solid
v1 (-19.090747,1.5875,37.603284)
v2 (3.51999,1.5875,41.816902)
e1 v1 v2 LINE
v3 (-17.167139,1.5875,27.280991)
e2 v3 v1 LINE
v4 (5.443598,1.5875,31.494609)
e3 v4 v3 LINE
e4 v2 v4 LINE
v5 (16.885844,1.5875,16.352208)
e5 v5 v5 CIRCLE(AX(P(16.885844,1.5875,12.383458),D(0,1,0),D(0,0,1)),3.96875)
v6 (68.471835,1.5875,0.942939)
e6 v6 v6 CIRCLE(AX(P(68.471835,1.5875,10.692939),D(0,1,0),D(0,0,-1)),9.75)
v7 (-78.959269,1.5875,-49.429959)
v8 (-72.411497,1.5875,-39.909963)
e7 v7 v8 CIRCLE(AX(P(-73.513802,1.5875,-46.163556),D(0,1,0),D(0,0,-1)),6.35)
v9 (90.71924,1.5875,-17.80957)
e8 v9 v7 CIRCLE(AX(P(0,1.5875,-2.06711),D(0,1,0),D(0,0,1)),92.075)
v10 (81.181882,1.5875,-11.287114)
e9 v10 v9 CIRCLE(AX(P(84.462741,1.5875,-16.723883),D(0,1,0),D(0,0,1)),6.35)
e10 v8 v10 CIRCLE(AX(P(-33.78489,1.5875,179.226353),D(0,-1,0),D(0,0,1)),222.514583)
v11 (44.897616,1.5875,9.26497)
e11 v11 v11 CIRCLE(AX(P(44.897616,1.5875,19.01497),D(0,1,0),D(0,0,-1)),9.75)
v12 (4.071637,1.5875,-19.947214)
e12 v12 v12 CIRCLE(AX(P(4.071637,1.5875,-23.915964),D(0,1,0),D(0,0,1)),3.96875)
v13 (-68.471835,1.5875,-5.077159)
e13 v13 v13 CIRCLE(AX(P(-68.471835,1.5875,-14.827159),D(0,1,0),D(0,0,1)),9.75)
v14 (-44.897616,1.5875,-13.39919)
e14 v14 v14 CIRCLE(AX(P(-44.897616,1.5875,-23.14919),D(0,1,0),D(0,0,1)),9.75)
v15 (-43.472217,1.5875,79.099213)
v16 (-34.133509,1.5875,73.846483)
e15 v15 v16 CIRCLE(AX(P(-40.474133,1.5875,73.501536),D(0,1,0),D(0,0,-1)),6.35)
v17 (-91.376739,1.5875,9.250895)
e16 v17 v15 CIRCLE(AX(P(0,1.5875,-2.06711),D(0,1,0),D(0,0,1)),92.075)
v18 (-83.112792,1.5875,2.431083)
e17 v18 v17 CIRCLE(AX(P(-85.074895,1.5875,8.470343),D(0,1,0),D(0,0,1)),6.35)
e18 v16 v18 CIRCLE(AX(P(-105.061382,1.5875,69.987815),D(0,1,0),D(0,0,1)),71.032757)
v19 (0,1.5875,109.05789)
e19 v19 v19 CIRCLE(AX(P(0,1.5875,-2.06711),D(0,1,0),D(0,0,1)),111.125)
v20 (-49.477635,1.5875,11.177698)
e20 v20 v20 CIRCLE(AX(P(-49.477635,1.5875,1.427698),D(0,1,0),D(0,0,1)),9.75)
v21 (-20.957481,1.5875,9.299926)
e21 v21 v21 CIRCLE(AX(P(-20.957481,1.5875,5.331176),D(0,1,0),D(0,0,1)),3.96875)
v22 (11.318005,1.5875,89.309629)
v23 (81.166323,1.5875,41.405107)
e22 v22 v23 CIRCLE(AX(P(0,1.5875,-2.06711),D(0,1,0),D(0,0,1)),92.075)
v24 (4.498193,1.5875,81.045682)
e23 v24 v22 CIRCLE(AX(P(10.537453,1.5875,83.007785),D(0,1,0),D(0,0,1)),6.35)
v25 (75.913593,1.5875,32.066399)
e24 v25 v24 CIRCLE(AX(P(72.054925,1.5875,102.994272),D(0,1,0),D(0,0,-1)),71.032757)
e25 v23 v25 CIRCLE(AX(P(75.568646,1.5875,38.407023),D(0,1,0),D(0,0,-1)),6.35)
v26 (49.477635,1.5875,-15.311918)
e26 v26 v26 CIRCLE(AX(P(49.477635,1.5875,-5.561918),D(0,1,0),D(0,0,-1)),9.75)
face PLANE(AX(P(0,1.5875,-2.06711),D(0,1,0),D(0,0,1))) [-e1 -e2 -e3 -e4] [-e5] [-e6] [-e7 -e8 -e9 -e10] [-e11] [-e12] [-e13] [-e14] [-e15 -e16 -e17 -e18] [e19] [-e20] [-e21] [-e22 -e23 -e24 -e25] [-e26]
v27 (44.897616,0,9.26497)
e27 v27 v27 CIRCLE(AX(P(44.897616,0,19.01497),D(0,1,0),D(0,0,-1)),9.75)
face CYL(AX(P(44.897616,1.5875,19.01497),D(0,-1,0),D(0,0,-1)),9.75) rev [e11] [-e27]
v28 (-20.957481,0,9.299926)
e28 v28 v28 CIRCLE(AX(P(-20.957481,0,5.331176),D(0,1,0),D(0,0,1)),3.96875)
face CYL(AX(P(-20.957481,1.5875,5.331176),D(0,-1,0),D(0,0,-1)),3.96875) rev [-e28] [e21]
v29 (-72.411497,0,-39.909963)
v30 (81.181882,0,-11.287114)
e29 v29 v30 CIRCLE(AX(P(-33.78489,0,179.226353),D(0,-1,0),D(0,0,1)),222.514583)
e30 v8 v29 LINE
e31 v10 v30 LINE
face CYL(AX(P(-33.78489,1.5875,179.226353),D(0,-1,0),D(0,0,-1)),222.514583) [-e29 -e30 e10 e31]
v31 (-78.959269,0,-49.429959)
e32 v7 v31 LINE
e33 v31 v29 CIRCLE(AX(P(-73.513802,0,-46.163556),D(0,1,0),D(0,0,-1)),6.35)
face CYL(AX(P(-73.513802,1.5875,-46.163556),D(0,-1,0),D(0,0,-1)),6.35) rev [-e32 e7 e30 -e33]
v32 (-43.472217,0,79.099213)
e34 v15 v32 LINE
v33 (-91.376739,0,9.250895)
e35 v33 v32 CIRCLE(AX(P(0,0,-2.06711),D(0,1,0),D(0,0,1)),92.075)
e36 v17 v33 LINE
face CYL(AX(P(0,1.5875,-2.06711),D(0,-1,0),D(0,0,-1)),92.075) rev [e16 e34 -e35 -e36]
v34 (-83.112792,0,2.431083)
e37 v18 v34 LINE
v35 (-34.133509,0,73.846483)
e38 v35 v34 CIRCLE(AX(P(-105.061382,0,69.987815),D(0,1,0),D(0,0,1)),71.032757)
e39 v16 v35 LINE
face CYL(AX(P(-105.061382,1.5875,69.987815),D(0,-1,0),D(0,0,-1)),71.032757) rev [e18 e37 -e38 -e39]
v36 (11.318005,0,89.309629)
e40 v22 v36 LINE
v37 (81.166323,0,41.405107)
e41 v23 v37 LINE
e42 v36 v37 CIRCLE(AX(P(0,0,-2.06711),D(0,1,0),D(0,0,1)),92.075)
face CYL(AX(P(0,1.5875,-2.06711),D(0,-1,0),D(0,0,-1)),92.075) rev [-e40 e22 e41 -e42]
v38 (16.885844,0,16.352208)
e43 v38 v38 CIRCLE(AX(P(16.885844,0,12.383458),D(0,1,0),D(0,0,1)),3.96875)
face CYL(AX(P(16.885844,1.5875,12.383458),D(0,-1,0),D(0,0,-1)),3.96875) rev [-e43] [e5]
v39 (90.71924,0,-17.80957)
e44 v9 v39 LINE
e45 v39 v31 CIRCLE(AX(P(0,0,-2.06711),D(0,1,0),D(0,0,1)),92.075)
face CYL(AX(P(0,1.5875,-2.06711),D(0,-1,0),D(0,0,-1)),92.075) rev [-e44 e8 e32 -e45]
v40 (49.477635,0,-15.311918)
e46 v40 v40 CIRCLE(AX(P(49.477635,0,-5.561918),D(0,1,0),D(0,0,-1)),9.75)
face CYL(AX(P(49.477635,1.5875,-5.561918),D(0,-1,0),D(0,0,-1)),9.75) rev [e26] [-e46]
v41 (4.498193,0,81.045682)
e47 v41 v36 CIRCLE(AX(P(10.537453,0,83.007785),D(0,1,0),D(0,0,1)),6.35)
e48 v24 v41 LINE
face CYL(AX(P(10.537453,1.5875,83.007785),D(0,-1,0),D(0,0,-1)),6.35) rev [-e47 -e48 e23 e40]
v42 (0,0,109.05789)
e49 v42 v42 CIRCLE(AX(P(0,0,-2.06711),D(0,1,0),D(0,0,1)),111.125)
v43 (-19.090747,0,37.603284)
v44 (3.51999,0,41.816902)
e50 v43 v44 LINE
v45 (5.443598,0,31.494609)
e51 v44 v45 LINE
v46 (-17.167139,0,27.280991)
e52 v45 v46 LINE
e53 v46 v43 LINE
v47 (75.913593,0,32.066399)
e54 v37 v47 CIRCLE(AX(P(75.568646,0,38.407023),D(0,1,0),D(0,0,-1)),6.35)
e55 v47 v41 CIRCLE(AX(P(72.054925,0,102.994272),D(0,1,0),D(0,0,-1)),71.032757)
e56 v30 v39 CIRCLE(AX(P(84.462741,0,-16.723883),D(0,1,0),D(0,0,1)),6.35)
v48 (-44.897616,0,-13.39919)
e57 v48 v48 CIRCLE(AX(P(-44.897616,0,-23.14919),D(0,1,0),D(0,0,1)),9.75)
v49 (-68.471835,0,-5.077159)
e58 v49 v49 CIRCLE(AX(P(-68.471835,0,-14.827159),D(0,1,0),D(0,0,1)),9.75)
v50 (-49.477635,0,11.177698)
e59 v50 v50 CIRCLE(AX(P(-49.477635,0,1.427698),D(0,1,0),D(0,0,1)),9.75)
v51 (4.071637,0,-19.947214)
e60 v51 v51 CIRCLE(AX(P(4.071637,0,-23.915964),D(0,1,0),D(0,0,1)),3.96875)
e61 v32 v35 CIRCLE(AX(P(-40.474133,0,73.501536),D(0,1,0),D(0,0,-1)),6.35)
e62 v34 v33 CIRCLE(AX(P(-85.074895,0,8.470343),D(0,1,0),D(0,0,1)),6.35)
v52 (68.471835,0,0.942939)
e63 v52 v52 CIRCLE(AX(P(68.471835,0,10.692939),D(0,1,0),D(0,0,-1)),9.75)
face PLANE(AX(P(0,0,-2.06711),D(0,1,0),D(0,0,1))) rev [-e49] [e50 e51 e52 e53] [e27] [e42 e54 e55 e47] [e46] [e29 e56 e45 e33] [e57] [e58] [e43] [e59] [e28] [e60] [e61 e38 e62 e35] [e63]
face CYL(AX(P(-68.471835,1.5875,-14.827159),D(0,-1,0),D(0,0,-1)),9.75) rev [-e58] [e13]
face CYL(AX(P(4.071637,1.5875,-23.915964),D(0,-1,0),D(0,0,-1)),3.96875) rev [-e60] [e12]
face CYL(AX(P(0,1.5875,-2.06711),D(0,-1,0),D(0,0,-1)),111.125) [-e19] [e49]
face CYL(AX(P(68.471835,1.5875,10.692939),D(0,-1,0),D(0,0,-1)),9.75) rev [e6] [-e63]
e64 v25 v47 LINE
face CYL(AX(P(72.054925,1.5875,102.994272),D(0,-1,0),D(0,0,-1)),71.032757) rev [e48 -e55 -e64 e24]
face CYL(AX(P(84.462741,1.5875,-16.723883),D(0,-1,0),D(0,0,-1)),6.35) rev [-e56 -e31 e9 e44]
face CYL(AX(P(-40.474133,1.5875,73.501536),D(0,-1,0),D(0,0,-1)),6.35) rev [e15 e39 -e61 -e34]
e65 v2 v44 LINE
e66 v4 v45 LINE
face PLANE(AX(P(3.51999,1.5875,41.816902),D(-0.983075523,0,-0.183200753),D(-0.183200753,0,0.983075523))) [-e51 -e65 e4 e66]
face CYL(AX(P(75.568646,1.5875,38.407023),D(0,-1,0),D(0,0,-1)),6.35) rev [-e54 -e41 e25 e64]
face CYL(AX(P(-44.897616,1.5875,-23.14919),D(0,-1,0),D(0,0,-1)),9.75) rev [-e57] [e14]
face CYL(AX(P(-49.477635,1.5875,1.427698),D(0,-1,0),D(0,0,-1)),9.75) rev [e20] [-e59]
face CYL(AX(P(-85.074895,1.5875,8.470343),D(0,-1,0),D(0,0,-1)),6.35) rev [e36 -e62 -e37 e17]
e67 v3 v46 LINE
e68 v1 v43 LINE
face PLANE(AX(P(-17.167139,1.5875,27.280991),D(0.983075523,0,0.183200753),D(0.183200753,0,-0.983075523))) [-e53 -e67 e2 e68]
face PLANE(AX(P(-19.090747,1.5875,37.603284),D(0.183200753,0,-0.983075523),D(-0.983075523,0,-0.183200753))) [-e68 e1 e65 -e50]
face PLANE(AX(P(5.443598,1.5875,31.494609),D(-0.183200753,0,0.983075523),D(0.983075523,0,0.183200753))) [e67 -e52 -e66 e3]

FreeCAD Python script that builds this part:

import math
import FreeCAD as App
import Part
import Sketcher

V = App.Vector
Q = App.Units.Quantity


def add_polygon(sketch, points):
    """Adds a closed chain of lines whose ends are joined by coincident constraints."""
    first, n = sketch.GeometryCount, len(points)
    for a, b in zip(points, points[1:] + points[:1]):
        sketch.addGeometry(Part.LineSegment(App.Vector(*a, 0), App.Vector(*b, 0)), False)
    for i in range(n):
        sketch.addConstraint(Sketcher.Constraint("Coincident", first + i, 2, first + (i + 1) % n, 1))

doc = App.newDocument("Part")
params = doc.addObject("Spreadsheet::Sheet", "Params")
for row, (alias, value) in enumerate([
    ("sketch1_diameter", "8.75 in"),
    ("sketch1_radius", "0.25 in"),
    ("sketch1_diameter2", "0.3125 in"),
    ("sketch1_radius2", "3.625 in"),
    ("pad1_length", "0.0625 in"),
], start=1):
    params.set(f"A{row}", alias)
    params.set(f"B{row}", "=" + value)
    params.setAlias(f"B{row}", alias)

body = doc.addObject("PartDesign::Body", "Body")

# Sketch on XZ plane
sketch1 = body.newObject("Sketcher::SketchObject", "Sketch")
sketch1.AttachmentSupport = (doc.getObject("XZ_Plane"), [""])
sketch1.MapMode = "FlatFace"
sketch1.addGeometry(Part.Circle(V(0, -2.06711, 0), V(0, 0, 1), 111.125), False)  # 0
sketch1.addGeometry(Part.ArcOfCircle(Part.Circle(V(-105.061382, 69.987815, 0), V(0, 0, 1), 71.032757), math.radians(-72.001475), math.radians(3.113976)), False)  # 1
sketch1.addGeometry(Part.ArcOfCircle(Part.Circle(V(-40.474133, 73.501536, 0), V(0, 0, 1), 6.35), math.radians(3.113976), math.radians(118.173246)), False)  # 2
sketch1.addGeometry(Part.ArcOfCircle(Part.Circle(V(0, -2.06711, 0), V(0, 0, 1), 92.075), math.radians(118.173246), math.radians(172.939254)), False)  # 3
sketch1.addGeometry(Part.ArcOfCircle(Part.Circle(V(-85.074895, 8.470343, 0), V(0, 0, 1), 6.35), math.radians(172.939254), math.radians(287.998525)), False)  # 4
sketch1.addGeometry(Part.Circle(V(-49.477635, 1.427698, 0), V(0, 0, 1), 9.75), False)  # 5
add_polygon(sketch1, [(5.443598, 31.494609), (3.51999, 41.816902), (-19.090747, 37.603284), (-17.167139, 27.280991)])  # lines 6-9
sketch1.addGeometry(Part.Circle(V(-20.957481, 5.331176, 0), V(0, 0, 1), 3.96875), False)  # 10
sketch1.addGeometry(Part.ArcOfCircle(Part.Circle(V(10.537453, 83.007785, 0), V(0, 0, 1), 6.35), math.radians(82.939254), math.radians(197.998525)), False)  # 11
sketch1.addGeometry(Part.ArcOfCircle(Part.Circle(V(72.054925, 102.994272, 0), V(0, 0, 1), 71.032757), math.radians(-162.001475), math.radians(-86.886024)), False)  # 12
sketch1.addGeometry(Part.ArcOfCircle(Part.Circle(V(75.568646, 38.407023, 0), V(0, 0, 1), 6.35), math.radians(-86.886024), math.radians(28.173246)), False)  # 13
sketch1.addGeometry(Part.ArcOfCircle(Part.Circle(V(0, -2.06711, 0), V(0, 0, 1), 92.075), math.radians(28.173246), math.radians(82.939254)), False)  # 14
sketch1.addGeometry(Part.Circle(V(16.885844, 12.383458, 0), V(0, 0, 1), 3.96875), False)  # 15
sketch1.addGeometry(Part.Circle(V(44.897616, 19.01497, 0), V(0, 0, 1), 9.75), False)  # 16
sketch1.addGeometry(Part.Circle(V(68.471835, 10.692939, 0), V(0, 0, 1), 9.75), False)  # 17
sketch1.addGeometry(Part.Circle(V(-68.471835, -14.827159, 0), V(0, 0, 1), 9.75), False)  # 18
sketch1.addGeometry(Part.Circle(V(-44.897616, -23.14919, 0), V(0, 0, 1), 9.75), False)  # 19
sketch1.addGeometry(Part.Circle(V(4.071637, -23.915964, 0), V(0, 0, 1), 3.96875), False)  # 20
sketch1.addGeometry(Part.Circle(V(49.477635, -5.561918, 0), V(0, 0, 1), 9.75), False)  # 21
sketch1.addGeometry(Part.ArcOfCircle(Part.Circle(V(0, -2.06711, 0), V(0, 0, 1), 92.075), math.radians(-149.043026), math.radians(-9.844473)), False)  # 22
sketch1.addGeometry(Part.ArcOfCircle(Part.Circle(V(84.462741, -16.723883, 0), V(0, 0, 1), 6.35), math.radians(-9.844473), math.radians(121.109194)), False)  # 23
sketch1.addGeometry(Part.ArcOfCircle(Part.Circle(V(-33.78489, 179.226353, 0), V(0, 0, 1), 222.514583), math.radians(-99.996694), math.radians(-58.890806)), False)  # 24
sketch1.addGeometry(Part.ArcOfCircle(Part.Circle(V(-73.513802, -46.163556, 0), V(0, 0, 1), 6.35), math.radians(80.003306), math.radians(210.956974)), False)  # 25
sketch1.addConstraint([
    Sketcher.Constraint("Tangent", 1, 2, 2, 1),
    Sketcher.Constraint("Tangent", 2, 2, 3, 1),
    Sketcher.Constraint("Tangent", 3, 2, 4, 1),
    Sketcher.Constraint("Tangent", 4, 2, 1, 1),
    Sketcher.Constraint("Tangent", 11, 2, 12, 1),
    Sketcher.Constraint("Tangent", 12, 2, 13, 1),
    Sketcher.Constraint("Tangent", 13, 2, 14, 1),
    Sketcher.Constraint("Tangent", 14, 2, 11, 1),
    Sketcher.Constraint("Tangent", 22, 2, 23, 1),
    Sketcher.Constraint("Tangent", 23, 2, 24, 2),
    Sketcher.Constraint("Tangent", 24, 1, 25, 1),
    Sketcher.Constraint("Tangent", 25, 2, 22, 1),
    Sketcher.Constraint("Coincident", 3, 3, 0, 3),
    Sketcher.Constraint("Coincident", 14, 3, 0, 3),
    Sketcher.Constraint("Coincident", 22, 3, 0, 3),
    Sketcher.Constraint("Equal", 2, 4),
    Sketcher.Constraint("Equal", 4, 11),
    Sketcher.Constraint("Equal", 1, 12),
    Sketcher.Constraint("Equal", 11, 13),
    Sketcher.Constraint("Equal", 3, 14),
    Sketcher.Constraint("Equal", 10, 15),
    Sketcher.Constraint("Equal", 5, 16),
    Sketcher.Constraint("Equal", 16, 17),
    Sketcher.Constraint("Equal", 17, 18),
    Sketcher.Constraint("Equal", 18, 19),
    Sketcher.Constraint("Equal", 15, 20),
    Sketcher.Constraint("Equal", 19, 21),
    Sketcher.Constraint("Equal", 14, 22),
    Sketcher.Constraint("Equal", 13, 23),
    Sketcher.Constraint("Equal", 23, 25),
    Sketcher.Constraint("PointOnObject", 0, 3, -2),
    Sketcher.Constraint("Perpendicular", 6, 7),
    Sketcher.Constraint("Perpendicular", 7, 8),
    Sketcher.Constraint("Perpendicular", 8, 9),
    Sketcher.Constraint("Diameter", 0, Q("8.75 in")),
    Sketcher.Constraint("Radius", 2, Q("0.25 in")),
    Sketcher.Constraint("Diameter", 10, Q("0.3125 in")),
    Sketcher.Constraint("Radius", 3, Q("3.625 in")),
    Sketcher.Constraint("Diameter", 5, 19.5),
    Sketcher.Constraint("DistanceY", 5, 3, 3, 2, Q("0.3079999 in")),
    Sketcher.Constraint("Radius", 1, 71.032757),
    Sketcher.Constraint("Radius", 24, 222.514583),
    Sketcher.Constraint("Distance", 6, 10.5),
    Sketcher.Constraint("Distance", 7, 23.0),
    Sketcher.Constraint("DistanceX", 25, 3, -1, 1, 73.513802),
    Sketcher.Constraint("DistanceY", -1, 1, 6, 2, 41.816902),
    Sketcher.Constraint("DistanceY", -1, 1, 12, 2, 32.066399),
    Sketcher.Constraint("DistanceX", 5, 3, 2, 3, 9.003502),
    Sketcher.Constraint("DistanceX", 15, 3, 13, 3, 58.682802),
    Sketcher.Constraint("DistanceX", 18, 3, 5, 3, 18.9942),
    Sketcher.Constraint("DistanceY", 18, 3, 4, 3, 23.297501),
    Sketcher.Constraint("DistanceX", 21, 3, 17, 3, 18.9942),
    Sketcher.Constraint("DistanceY", 25, 3, 4, 3, 54.633899),
    Sketcher.Constraint("DistanceY", 1, 3, 2, 2, 9.111398),
    Sketcher.Constraint("DistanceY", 7, 2, 1, 2, 36.243198),
    Sketcher.Constraint("DistanceY", 3, 3, 8, 2, 29.348101),
    Sketcher.Constraint("DistanceX", 1, 2, 11, 2, 38.631702),
    Sketcher.Constraint("DistanceX", 10, 3, -1, 1, 20.957481),
    Sketcher.Constraint("DistanceY", -1, 1, 16, 3, 19.01497),
    Sketcher.Constraint("DistanceY", -1, 1, 17, 3, 10.692939),
    Sketcher.Constraint("DistanceY", 19, 3, -1, 1, 23.14919),
    Sketcher.Constraint("DistanceX", -1, 1, 23, 3, 84.462741),
    Sketcher.Constraint("DistanceX", -1, 1, 6, 2, 3.51999),
    Sketcher.Constraint("DistanceY", 10, 3, 2, 3, 68.17036),
    Sketcher.Constraint("DistanceY", 10, 3, 15, 3, 7.052282),
    Sketcher.Constraint("DistanceX", 15, 3, 16, 3, 28.011772),
    Sketcher.Constraint("DistanceX", 16, 3, 17, 3, 23.574219),
    Sketcher.Constraint("DistanceX", 5, 3, 19, 3, 4.580019),
    Sketcher.Constraint("DistanceY", 20, 3, 15, 3, 36.299421),
    Sketcher.Constraint("DistanceY", 21, 3, 16, 3, 24.576888),
    Sketcher.Constraint("DistanceX", -1, 1, 20, 3, 4.071637),
])
sketch1.setExpression("Constraints[38]", "Params.sketch1_diameter")
sketch1.setExpression("Constraints[39]", "Params.sketch1_radius")
sketch1.setExpression("Constraints[40]", "Params.sketch1_diameter2")
sketch1.setExpression("Constraints[41]", "Params.sketch1_radius2")
pad1 = body.newObject("PartDesign::Pad", "Pad")
pad1.Profile = sketch1
pad1.setExpression("Length", "Params.pad1_length")
pad1.Reversed = True

doc.recompute()
